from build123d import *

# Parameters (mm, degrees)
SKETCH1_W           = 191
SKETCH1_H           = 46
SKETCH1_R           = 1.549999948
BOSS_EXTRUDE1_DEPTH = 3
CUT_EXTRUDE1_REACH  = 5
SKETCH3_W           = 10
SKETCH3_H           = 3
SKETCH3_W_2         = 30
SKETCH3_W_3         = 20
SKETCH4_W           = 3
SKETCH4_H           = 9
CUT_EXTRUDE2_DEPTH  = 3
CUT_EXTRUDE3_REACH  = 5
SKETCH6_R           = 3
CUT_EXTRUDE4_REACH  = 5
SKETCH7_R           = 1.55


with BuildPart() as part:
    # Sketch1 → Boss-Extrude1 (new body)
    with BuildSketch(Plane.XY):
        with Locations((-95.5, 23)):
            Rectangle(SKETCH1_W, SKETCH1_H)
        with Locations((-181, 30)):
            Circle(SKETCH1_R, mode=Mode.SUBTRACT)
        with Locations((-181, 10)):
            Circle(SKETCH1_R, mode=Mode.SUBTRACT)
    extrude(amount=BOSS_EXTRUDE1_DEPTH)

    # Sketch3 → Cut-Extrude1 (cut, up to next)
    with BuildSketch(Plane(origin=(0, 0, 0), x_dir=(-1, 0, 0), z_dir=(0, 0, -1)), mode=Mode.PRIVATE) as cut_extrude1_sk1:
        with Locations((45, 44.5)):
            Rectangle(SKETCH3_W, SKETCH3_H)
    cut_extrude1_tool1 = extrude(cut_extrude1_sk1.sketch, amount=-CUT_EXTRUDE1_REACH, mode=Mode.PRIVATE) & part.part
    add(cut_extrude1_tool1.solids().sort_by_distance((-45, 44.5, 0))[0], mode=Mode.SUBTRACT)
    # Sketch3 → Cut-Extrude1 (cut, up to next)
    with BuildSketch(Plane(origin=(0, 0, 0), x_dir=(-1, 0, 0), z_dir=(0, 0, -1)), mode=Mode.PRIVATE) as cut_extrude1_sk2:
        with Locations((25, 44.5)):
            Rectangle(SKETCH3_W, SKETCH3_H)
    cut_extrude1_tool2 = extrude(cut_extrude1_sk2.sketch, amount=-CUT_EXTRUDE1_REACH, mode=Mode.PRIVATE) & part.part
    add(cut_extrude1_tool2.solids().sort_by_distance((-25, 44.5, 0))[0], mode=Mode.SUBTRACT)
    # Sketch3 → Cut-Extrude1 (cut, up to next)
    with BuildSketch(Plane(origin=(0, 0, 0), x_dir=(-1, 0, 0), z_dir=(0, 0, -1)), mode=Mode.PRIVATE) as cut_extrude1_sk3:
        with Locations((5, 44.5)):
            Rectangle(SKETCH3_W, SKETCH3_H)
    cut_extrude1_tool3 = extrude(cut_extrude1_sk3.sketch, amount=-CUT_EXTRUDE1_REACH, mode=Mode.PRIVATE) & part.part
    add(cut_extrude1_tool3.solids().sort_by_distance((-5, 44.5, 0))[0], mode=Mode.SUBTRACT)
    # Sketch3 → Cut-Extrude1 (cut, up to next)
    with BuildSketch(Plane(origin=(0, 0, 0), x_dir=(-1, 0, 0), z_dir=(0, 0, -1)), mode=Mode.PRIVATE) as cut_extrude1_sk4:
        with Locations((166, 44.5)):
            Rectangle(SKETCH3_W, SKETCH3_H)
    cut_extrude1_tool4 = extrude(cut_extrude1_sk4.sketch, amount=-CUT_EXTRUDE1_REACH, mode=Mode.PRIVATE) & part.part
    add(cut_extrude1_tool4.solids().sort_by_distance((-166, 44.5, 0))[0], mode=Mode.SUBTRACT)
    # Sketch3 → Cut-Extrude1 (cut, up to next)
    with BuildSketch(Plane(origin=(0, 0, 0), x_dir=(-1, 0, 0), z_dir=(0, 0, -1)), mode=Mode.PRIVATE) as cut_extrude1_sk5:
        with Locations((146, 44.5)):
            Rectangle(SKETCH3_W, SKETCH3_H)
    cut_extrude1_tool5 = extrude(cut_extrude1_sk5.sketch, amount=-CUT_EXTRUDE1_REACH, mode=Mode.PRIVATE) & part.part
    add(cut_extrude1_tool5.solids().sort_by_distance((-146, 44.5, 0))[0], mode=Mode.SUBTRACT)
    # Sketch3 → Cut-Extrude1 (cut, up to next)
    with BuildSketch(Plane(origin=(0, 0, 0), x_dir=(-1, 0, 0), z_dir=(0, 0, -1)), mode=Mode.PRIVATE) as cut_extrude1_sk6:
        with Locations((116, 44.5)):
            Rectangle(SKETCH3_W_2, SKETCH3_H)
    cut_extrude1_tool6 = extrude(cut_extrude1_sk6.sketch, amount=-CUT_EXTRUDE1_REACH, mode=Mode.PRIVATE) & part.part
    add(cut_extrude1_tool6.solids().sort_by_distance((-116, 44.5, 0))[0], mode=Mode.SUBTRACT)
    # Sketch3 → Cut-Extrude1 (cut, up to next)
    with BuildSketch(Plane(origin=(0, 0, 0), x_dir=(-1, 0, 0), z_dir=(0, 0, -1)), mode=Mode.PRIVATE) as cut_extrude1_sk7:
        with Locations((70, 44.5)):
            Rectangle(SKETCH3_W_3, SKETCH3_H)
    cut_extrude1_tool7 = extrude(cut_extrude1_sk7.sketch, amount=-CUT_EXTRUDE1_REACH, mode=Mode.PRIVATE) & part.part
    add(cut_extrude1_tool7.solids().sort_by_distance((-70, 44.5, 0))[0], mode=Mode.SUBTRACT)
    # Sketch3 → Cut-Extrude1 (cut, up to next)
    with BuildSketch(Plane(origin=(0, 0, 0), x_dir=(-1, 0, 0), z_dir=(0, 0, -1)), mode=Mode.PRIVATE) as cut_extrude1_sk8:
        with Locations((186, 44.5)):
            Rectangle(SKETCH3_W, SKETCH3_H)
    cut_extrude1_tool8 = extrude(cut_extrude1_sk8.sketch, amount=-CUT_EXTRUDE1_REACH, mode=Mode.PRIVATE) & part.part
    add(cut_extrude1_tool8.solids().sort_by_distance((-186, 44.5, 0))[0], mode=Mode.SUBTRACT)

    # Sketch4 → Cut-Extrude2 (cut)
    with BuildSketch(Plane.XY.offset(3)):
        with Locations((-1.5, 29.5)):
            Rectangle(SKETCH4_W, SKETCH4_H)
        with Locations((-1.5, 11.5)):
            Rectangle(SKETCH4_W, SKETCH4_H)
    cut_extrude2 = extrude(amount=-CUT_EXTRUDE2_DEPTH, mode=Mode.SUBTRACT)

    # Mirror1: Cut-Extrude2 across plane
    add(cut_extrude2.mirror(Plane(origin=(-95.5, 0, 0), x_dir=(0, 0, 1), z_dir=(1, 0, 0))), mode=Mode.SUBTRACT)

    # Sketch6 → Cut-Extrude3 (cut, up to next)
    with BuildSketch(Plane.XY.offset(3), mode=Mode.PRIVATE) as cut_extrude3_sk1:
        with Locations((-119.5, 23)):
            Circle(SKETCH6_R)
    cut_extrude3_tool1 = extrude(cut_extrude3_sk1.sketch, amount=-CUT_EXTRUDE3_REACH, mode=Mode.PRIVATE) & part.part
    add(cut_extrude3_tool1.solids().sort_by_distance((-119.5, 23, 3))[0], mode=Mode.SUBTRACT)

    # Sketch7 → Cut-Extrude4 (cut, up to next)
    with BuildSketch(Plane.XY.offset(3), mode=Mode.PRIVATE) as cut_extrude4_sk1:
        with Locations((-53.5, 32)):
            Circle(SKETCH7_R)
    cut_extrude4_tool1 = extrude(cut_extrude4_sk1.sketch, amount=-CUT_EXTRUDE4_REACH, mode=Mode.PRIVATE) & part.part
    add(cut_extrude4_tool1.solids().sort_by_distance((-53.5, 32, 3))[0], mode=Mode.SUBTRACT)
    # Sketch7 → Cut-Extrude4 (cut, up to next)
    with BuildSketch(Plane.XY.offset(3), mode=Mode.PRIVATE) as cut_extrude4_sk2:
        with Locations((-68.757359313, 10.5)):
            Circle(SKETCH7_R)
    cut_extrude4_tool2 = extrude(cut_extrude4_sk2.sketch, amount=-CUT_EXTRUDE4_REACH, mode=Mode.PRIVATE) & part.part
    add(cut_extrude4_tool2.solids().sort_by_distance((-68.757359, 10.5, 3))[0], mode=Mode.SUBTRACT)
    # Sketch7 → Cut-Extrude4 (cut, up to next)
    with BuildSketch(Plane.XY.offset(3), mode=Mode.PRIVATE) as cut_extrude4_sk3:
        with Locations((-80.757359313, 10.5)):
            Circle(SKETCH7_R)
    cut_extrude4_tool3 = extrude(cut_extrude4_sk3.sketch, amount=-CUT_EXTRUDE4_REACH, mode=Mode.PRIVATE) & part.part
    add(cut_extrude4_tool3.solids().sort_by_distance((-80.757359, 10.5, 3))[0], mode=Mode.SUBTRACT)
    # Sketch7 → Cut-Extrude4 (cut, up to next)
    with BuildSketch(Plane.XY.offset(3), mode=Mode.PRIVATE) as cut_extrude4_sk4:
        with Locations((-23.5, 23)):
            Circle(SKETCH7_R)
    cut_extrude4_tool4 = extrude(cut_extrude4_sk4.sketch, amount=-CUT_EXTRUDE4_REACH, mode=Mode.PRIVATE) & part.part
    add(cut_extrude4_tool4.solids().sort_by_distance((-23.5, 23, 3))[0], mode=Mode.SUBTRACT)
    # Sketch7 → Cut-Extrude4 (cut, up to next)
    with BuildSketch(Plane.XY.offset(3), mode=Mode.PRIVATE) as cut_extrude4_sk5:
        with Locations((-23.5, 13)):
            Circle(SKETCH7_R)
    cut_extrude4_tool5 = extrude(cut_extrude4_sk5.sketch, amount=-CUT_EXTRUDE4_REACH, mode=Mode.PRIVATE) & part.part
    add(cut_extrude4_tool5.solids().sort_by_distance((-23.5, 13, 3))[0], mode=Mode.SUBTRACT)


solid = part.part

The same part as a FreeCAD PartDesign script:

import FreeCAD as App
import Part
import Sketcher

V = App.Vector
Q = App.Units.Quantity


def add_polygon(sketch, points):
    """Adds a closed chain of lines whose ends are joined by coincident constraints."""
    first, n = sketch.GeometryCount, len(points)
    for a, b in zip(points, points[1:] + points[:1]):
        sketch.addGeometry(Part.LineSegment(App.Vector(*a, 0), App.Vector(*b, 0)), False)
    for i in range(n):
        sketch.addConstraint(Sketcher.Constraint("Coincident", first + i, 2, first + (i + 1) % n, 1))

doc = App.newDocument("Part")
body = doc.addObject("PartDesign::Body", "Body")

sketch1 = doc.addObject("Sketcher::SketchObject", "Sketch")
body.addObject(sketch1)
sketch1.AttachmentSupport = (doc.XY_Plane, [""])
sketch1.MapMode = "FlatFace"
add_polygon(sketch1, [(-191, 46), (-191, 0), (0, 0), (0, 46)])
sketch1.addGeometry(Part.Circle(V(-181, 10, 0), V(0, 0, 1), 1.5), False)
sketch1.addGeometry(Part.Circle(V(-181, 30, 0), V(0, 0, 1), 1.5), False)
sketch1.addConstraint([
    Sketcher.Constraint("Vertical", 0),
    Sketcher.Constraint("Horizontal", 1),
    Sketcher.Constraint("Vertical", 2),
    Sketcher.Constraint("Horizontal", 3),
    Sketcher.Constraint("Coincident", 1, 2, -1, 1),
    Sketcher.Constraint("Equal", 4, 5),
    Sketcher.Constraint("Vertical", 4, 3, 5, 3),
    Sketcher.Constraint("Diameter", 4, Q("3.1 mm")),
    Sketcher.Constraint("DistanceX", 1, 1, 1, 2, Q("191 mm")),
    Sketcher.Constraint("DistanceY", 0, 2, 0, 1, Q("46 mm")),
    Sketcher.Constraint("DistanceX", 4, 3, -1, 1, Q("181 mm")),
    Sketcher.Constraint("DistanceY", -1, 1, 4, 3, Q("10 mm")),
    Sketcher.Constraint("DistanceY", -1, 1, 5, 3, Q("30 mm")),
])
pad1 = doc.addObject("PartDesign::Pad", "Pad")
body.addObject(pad1)
pad1.Profile = sketch1
pad1.Length = 3

sketch2 = doc.addObject("Sketcher::SketchObject", "Sketch001")
body.addObject(sketch2)
sketch2.AttachmentSupport = (doc.XY_Plane, [""])
sketch2.MapMode = "FlatFace"
add_polygon(sketch2, [(-40, 46), (-40, 43), (-50, 43), (-50, 46)])
sketch2.addConstraint([
    Sketcher.Constraint("Vertical", 0),
    Sketcher.Constraint("Horizontal", 1),
    Sketcher.Constraint("Vertical", 2),
    Sketcher.Constraint("Horizontal", 3),
    Sketcher.Constraint("DistanceX", 1, 2, 1, 1, Q("10 mm")),
    Sketcher.Constraint("DistanceY", 0, 2, 0, 1, Q("3 mm")),
    Sketcher.Constraint("DistanceX", 0, 2, -1, 1, Q("40 mm")),
    Sketcher.Constraint("DistanceY", -1, 1, 0, 2, Q("43 mm")),
])
pocket1 = doc.addObject("PartDesign::Pocket", "Pocket")
body.addObject(pocket1)
pocket1.Profile = sketch2
pocket1.Type = "UpToFirst"
pocket1.Reversed = True

sketch3 = doc.addObject("Sketcher::SketchObject", "Sketch002")
body.addObject(sketch3)
sketch3.AttachmentSupport = (doc.XY_Plane, [""])
sketch3.MapMode = "FlatFace"
add_polygon(sketch3, [(-20, 46), (-20, 43), (-30, 43), (-30, 46)])
sketch3.addConstraint([
    Sketcher.Constraint("Vertical", 0),
    Sketcher.Constraint("Horizontal", 1),
    Sketcher.Constraint("Vertical", 2),
    Sketcher.Constraint("Horizontal", 3),
    Sketcher.Constraint("DistanceX", 1, 2, 1, 1, Q("10 mm")),
    Sketcher.Constraint("DistanceY", 0, 2, 0, 1, Q("3 mm")),
    Sketcher.Constraint("DistanceX", 0, 2, -1, 1, Q("20 mm")),
    Sketcher.Constraint("DistanceY", -1, 1, 0, 2, Q("43 mm")),
])
pocket2 = doc.addObject("PartDesign::Pocket", "Pocket001")
body.addObject(pocket2)
pocket2.Profile = sketch3
pocket2.Type = "UpToFirst"
pocket2.Reversed = True

sketch4 = doc.addObject("Sketcher::SketchObject", "Sketch003")
body.addObject(sketch4)
sketch4.AttachmentSupport = (doc.XY_Plane, [""])
sketch4.MapMode = "FlatFace"
add_polygon(sketch4, [(0, 46), (0, 43), (-10, 43), (-10, 46)])
sketch4.addConstraint([
    Sketcher.Constraint("Vertical", 0),
    Sketcher.Constraint("Horizontal", 1),
    Sketcher.Constraint("Vertical", 2),
    Sketcher.Constraint("Horizontal", 3),
    Sketcher.Constraint("PointOnObject", 0, 2, -2),
    Sketcher.Constraint("DistanceX", 1, 2, 1, 1, Q("10 mm")),
    Sketcher.Constraint("DistanceY", 0, 2, 0, 1, Q("3 mm")),
    Sketcher.Constraint("DistanceY", -1, 1, 0, 2, Q("43 mm")),
])
pocket3 = doc.addObject("PartDesign::Pocket", "Pocket002")
body.addObject(pocket3)
pocket3.Profile = sketch4
pocket3.Type = "UpToFirst"
pocket3.Reversed = True

sketch5 = doc.addObject("Sketcher::SketchObject", "Sketch004")
body.addObject(sketch5)
sketch5.AttachmentSupport = (doc.XY_Plane, [""])
sketch5.MapMode = "FlatFace"
add_polygon(sketch5, [(-161, 46), (-161, 43), (-171, 43), (-171, 46)])
sketch5.addConstraint([
    Sketcher.Constraint("Vertical", 0),
    Sketcher.Constraint("Horizontal", 1),
    Sketcher.Constraint("Vertical", 2),
    Sketcher.Constraint("Horizontal", 3),
    Sketcher.Constraint("DistanceX", 1, 2, 1, 1, Q("10 mm")),
    Sketcher.Constraint("DistanceY", 0, 2, 0, 1, Q("3 mm")),
    Sketcher.Constraint("DistanceX", 0, 2, -1, 1, Q("161 mm")),
    Sketcher.Constraint("DistanceY", -1, 1, 0, 2, Q("43 mm")),
])
pocket4 = doc.addObject("PartDesign::Pocket", "Pocket003")
body.addObject(pocket4)
pocket4.Profile = sketch5
pocket4.Type = "UpToFirst"
pocket4.Reversed = True

sketch6 = doc.addObject("Sketcher::SketchObject", "Sketch005")
body.addObject(sketch6)
sketch6.AttachmentSupport = (doc.XY_Plane, [""])
sketch6.MapMode = "FlatFace"
add_polygon(sketch6, [(-141, 46), (-141, 43), (-151, 43), (-151, 46)])
sketch6.addConstraint([
    Sketcher.Constraint("Vertical", 0),
    Sketcher.Constraint("Horizontal", 1),
    Sketcher.Constraint("Vertical", 2),
    Sketcher.Constraint("Horizontal", 3),
    Sketcher.Constraint("DistanceX", 1, 2, 1, 1, Q("10 mm")),
    Sketcher.Constraint("DistanceY", 0, 2, 0, 1, Q("3 mm")),
    Sketcher.Constraint("DistanceX", 0, 2, -1, 1, Q("141 mm")),
    Sketcher.Constraint("DistanceY", -1, 1, 0, 2, Q("43 mm")),
])
pocket5 = doc.addObject("PartDesign::Pocket", "Pocket004")
body.addObject(pocket5)
pocket5.Profile = sketch6
pocket5.Type = "UpToFirst"
pocket5.Reversed = True

sketch7 = doc.addObject("Sketcher::SketchObject", "Sketch006")
body.addObject(sketch7)
sketch7.AttachmentSupport = (doc.XY_Plane, [""])
sketch7.MapMode = "FlatFace"
add_polygon(sketch7, [(-101, 46), (-101, 43), (-131, 43), (-131, 46)])
sketch7.addConstraint([
    Sketcher.Constraint("Vertical", 0),
    Sketcher.Constraint("Horizontal", 1),
    Sketcher.Constraint("Vertical", 2),
    Sketcher.Constraint("Horizontal", 3),
    Sketcher.Constraint("DistanceX", 1, 2, 1, 1, Q("30 mm")),
    Sketcher.Constraint("DistanceY", 0, 2, 0, 1, Q("3 mm")),
    Sketcher.Constraint("DistanceX", 0, 2, -1, 1, Q("101 mm")),
    Sketcher.Constraint("DistanceY", -1, 1, 0, 2, Q("43 mm")),
])
pocket6 = doc.addObject("PartDesign::Pocket", "Pocket005")
body.addObject(pocket6)
pocket6.Profile = sketch7
pocket6.Type = "UpToFirst"
pocket6.Reversed = True

sketch8 = doc.addObject("Sketcher::SketchObject", "Sketch007")
body.addObject(sketch8)
sketch8.AttachmentSupport = (doc.XY_Plane, [""])
sketch8.MapMode = "FlatFace"
add_polygon(sketch8, [(-60, 46), (-60, 43), (-80, 43), (-80, 46)])
sketch8.addConstraint([
    Sketcher.Constraint("Vertical", 0),
    Sketcher.Constraint("Horizontal", 1),
    Sketcher.Constraint("Vertical", 2),
    Sketcher.Constraint("Horizontal", 3),
    Sketcher.Constraint("DistanceX", 1, 2, 1, 1, Q("20 mm")),
    Sketcher.Constraint("DistanceY", 0, 2, 0, 1, Q("3 mm")),
    Sketcher.Constraint("DistanceX", 0, 2, -1, 1, Q("60 mm")),
    Sketcher.Constraint("DistanceY", -1, 1, 0, 2, Q("43 mm")),
])
pocket7 = doc.addObject("PartDesign::Pocket", "Pocket006")
body.addObject(pocket7)
pocket7.Profile = sketch8
pocket7.Type = "UpToFirst"
pocket7.Reversed = True

sketch9 = doc.addObject("Sketcher::SketchObject", "Sketch008")
body.addObject(sketch9)
sketch9.AttachmentSupport = (doc.XY_Plane, [""])
sketch9.MapMode = "FlatFace"
add_polygon(sketch9, [(-181, 46), (-181, 43), (-191, 43), (-191, 46)])
sketch9.addConstraint([
    Sketcher.Constraint("Vertical", 0),
    Sketcher.Constraint("Horizontal", 1),
    Sketcher.Constraint("Vertical", 2),
    Sketcher.Constraint("Horizontal", 3),
    Sketcher.Constraint("DistanceX", 1, 2, 1, 1, Q("10 mm")),
    Sketcher.Constraint("DistanceY", 0, 2, 0, 1, Q("3 mm")),
    Sketcher.Constraint("DistanceX", 0, 2, -1, 1, Q("181 mm")),
    Sketcher.Constraint("DistanceY", -1, 1, 0, 2, Q("43 mm")),
])
pocket8 = doc.addObject("PartDesign::Pocket", "Pocket007")
body.addObject(pocket8)
pocket8.Profile = sketch9
pocket8.Type = "UpToFirst"
pocket8.Reversed = True

sketch10 = doc.addObject("Sketcher::SketchObject", "Sketch009")
body.addObject(sketch10)
sketch10.AttachmentSupport = (doc.XY_Plane, [""])
sketch10.MapMode = "FlatFace"
sketch10.AttachmentOffset = App.Placement(V(0, 0, 3), App.Rotation())
add_polygon(sketch10, [(-3, 34), (-3, 25), (0, 25), (0, 34)])
add_polygon(sketch10, [(-3, 16), (-3, 7), (0, 7), (0, 16)])
sketch10.addConstraint([
    Sketcher.Constraint("Vertical", 0),
    Sketcher.Constraint("Horizontal", 1),
    Sketcher.Constraint("Vertical", 2),
    Sketcher.Constraint("Horizontal", 3),
    Sketcher.Constraint("Vertical", 4),
    Sketcher.Constraint("Horizontal", 5),
    Sketcher.Constraint("Vertical", 6),
    Sketcher.Constraint("Horizontal", 7),
    Sketcher.Constraint("PointOnObject", 1, 2, -2),
    Sketcher.Constraint("PointOnObject", 5, 2, -2),
    Sketcher.Constraint("Vertical", 3, 2, 4, 2),
    Sketcher.Constraint("Equal", 2, 4),
    Sketcher.Constraint("DistanceX", 1, 1, 1, 2, Q("3 mm")),
    Sketcher.Constraint("DistanceY", 0, 2, 0, 1, Q("9 mm")),
    Sketcher.Constraint("DistanceY", -1, 1, 0, 2, Q("25 mm")),
    Sketcher.Constraint("DistanceY", -1, 1, 4, 2, Q("7 mm")),
])
pocket9 = doc.addObject("PartDesign::Pocket", "Pocket008")
body.addObject(pocket9)
pocket9.Profile = sketch10
pocket9.Length = 3
doc.recompute()

datumplane = doc.addObject("PartDesign::Plane", "DatumPlane")
body.addObject(datumplane)
datumplane.AttachmentSupport = (doc.YZ_Plane, [""])
datumplane.MapMode = "FlatFace"
datumplane.AttachmentOffset = App.Placement(V(0, 0, -95.5), App.Rotation())
mirrored = doc.addObject("PartDesign::Mirrored", "Mirrored")
body.addObject(mirrored)
mirrored.Originals = [pocket9]
mirrored.MirrorPlane = (datumplane, [""])
body.Tip = mirrored

sketch11 = doc.addObject("Sketcher::SketchObject", "Sketch010")
body.addObject(sketch11)
sketch11.AttachmentSupport = (doc.XY_Plane, [""])
sketch11.MapMode = "FlatFace"
sketch11.AttachmentOffset = App.Placement(V(0, 0, 3), App.Rotation())
sketch11.addGeometry(Part.Circle(V(-119.5, 23, 0), V(0, 0, 1), 3), False)
sketch11.addConstraint([
    Sketcher.Constraint("Diameter", 0, Q("6 mm")),
    Sketcher.Constraint("DistanceY", -1, 1, 0, 3, Q("23 mm")),
    Sketcher.Constraint("DistanceX", 0, 3, -1, 1, Q("119.5 mm")),
])
pocket10 = doc.addObject("PartDesign::Pocket", "Pocket009")
body.addObject(pocket10)
pocket10.Profile = sketch11
pocket10.Type = "UpToFirst"

sketch12 = doc.addObject("Sketcher::SketchObject", "Sketch011")
body.addObject(sketch12)
sketch12.AttachmentSupport = (doc.XY_Plane, [""])
sketch12.MapMode = "FlatFace"
sketch12.AttachmentOffset = App.Placement(V(0, 0, 3), App.Rotation())
sketch12.addGeometry(Part.Circle(V(-53.5, 32, 0), V(0, 0, 1), 1.6), False)
sketch12.addConstraint([
    Sketcher.Constraint("Diameter", 0, Q("3.1 mm")),
    Sketcher.Constraint("DistanceY", -1, 1, 0, 3, Q("32 mm")),
    Sketcher.Constraint("DistanceX", 0, 3, -1, 1, Q("53.5 mm")),
])
pocket11 = doc.addObject("PartDesign::Pocket", "Pocket010")
body.addObject(pocket11)
pocket11.Profile = sketch12
pocket11.Type = "UpToFirst"

sketch13 = doc.addObject("Sketcher::SketchObject", "Sketch012")
body.addObject(sketch13)
sketch13.AttachmentSupport = (doc.XY_Plane, [""])
sketch13.MapMode = "FlatFace"
sketch13.AttachmentOffset = App.Placement(V(0, 0, 3), App.Rotation())
sketch13.addGeometry(Part.Circle(V(-68.8, 10.5, 0), V(0, 0, 1), 1.6), False)
sketch13.addConstraint([
    Sketcher.Constraint("Diameter", 0, Q("3.1 mm")),
    Sketcher.Constraint("DistanceY", -1, 1, 0, 3, Q("10.5 mm")),
    Sketcher.Constraint("DistanceX", 0, 3, -1, 1, Q("68.757359 mm")),
])
pocket12 = doc.addObject("PartDesign::Pocket", "Pocket011")
body.addObject(pocket12)
pocket12.Profile = sketch13
pocket12.Type = "UpToFirst"

sketch14 = doc.addObject("Sketcher::SketchObject", "Sketch013")
body.addObject(sketch14)
sketch14.AttachmentSupport = (doc.XY_Plane, [""])
sketch14.MapMode = "FlatFace"
sketch14.AttachmentOffset = App.Placement(V(0, 0, 3), App.Rotation())
sketch14.addGeometry(Part.Circle(V(-80.8, 10.5, 0), V(0, 0, 1), 1.6), False)
sketch14.addConstraint([
    Sketcher.Constraint("Diameter", 0, Q("3.1 mm")),
    Sketcher.Constraint("DistanceY", -1, 1, 0, 3, Q("10.5 mm")),
    Sketcher.Constraint("DistanceX", 0, 3, -1, 1, Q("80.757359 mm")),
])
pocket13 = doc.addObject("PartDesign::Pocket", "Pocket012")
body.addObject(pocket13)
pocket13.Profile = sketch14
pocket13.Type = "UpToFirst"

sketch15 = doc.addObject("Sketcher::SketchObject", "Sketch014")
body.addObject(sketch15)
sketch15.AttachmentSupport = (doc.XY_Plane, [""])
sketch15.MapMode = "FlatFace"
sketch15.AttachmentOffset = App.Placement(V(0, 0, 3), App.Rotation())
sketch15.addGeometry(Part.Circle(V(-23.5, 23, 0), V(0, 0, 1), 1.6), False)
sketch15.addConstraint([
    Sketcher.Constraint("Diameter", 0, Q("3.1 mm")),
    Sketcher.Constraint("DistanceY", -1, 1, 0, 3, Q("23 mm")),
    Sketcher.Constraint("DistanceX", 0, 3, -1, 1, Q("23.5 mm")),
])
pocket14 = doc.addObject("PartDesign::Pocket", "Pocket013")
body.addObject(pocket14)
pocket14.Profile = sketch15
pocket14.Type = "UpToFirst"

sketch16 = doc.addObject("Sketcher::SketchObject", "Sketch015")
body.addObject(sketch16)
sketch16.AttachmentSupport = (doc.XY_Plane, [""])
sketch16.MapMode = "FlatFace"
sketch16.AttachmentOffset = App.Placement(V(0, 0, 3), App.Rotation())
sketch16.addGeometry(Part.Circle(V(-23.5, 13, 0), V(0, 0, 1), 1.6), False)
sketch16.addConstraint([
    Sketcher.Constraint("Diameter", 0, Q("3.1 mm")),
    Sketcher.Constraint("DistanceY", -1, 1, 0, 3, Q("13 mm")),
    Sketcher.Constraint("DistanceX", 0, 3, -1, 1, Q("23.5 mm")),
])
pocket15 = doc.addObject("PartDesign::Pocket", "Pocket014")
body.addObject(pocket15)
pocket15.Profile = sketch16
pocket15.Type = "UpToFirst"

doc.recompute()
